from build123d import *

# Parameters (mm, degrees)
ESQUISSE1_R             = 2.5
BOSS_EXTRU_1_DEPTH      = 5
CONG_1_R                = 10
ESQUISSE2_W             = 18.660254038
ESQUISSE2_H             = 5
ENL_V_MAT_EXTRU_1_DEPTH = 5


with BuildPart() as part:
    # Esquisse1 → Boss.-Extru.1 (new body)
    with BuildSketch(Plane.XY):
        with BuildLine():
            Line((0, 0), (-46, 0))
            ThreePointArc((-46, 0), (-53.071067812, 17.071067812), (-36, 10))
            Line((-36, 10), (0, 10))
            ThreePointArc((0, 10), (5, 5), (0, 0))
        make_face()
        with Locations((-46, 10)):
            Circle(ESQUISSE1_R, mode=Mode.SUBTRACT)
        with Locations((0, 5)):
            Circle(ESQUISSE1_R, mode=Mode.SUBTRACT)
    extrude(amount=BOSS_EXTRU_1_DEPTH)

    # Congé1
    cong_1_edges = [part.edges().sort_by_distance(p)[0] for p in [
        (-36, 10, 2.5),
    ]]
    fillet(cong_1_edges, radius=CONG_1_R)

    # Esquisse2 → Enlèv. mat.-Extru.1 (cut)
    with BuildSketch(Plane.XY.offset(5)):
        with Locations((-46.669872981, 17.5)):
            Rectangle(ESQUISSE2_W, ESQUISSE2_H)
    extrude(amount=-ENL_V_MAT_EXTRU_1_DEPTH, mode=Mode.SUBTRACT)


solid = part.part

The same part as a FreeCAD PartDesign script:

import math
import FreeCAD as App
import Part
import Sketcher
Q = App.Units.Quantity


def edges_at(feature, points):
    """Names of the edges that pass closest to the given points."""
    edges = feature.Shape.Edges
    near = lambda p: min(range(len(edges)), key=lambda i: edges[i].distToShape(Part.Vertex(*p))[0])
    return sorted({f"Edge{near(p) + 1}" for p in points})


def add_polygon(sketch, points):
    """Adds a closed chain of lines whose ends are joined by coincident constraints."""
    first, n = sketch.GeometryCount, len(points)
    for a, b in zip(points, points[1:] + points[:1]):
        sketch.addGeometry(Part.LineSegment(App.Vector(*a, 0), App.Vector(*b, 0)), False)
    for i in range(n):
        sketch.addConstraint(Sketcher.Constraint("Coincident", first + i, 2, first + (i + 1) % n, 1))

doc = App.newDocument("Part")
body = doc.addObject("PartDesign::Body", "Body")

sketch1 = body.newObject("Sketcher::SketchObject", "Sketch")
sketch1.AttachmentSupport = (doc.getObject("XY_Plane"), [""])
sketch1.MapMode = "FlatFace"
sketch1.addGeometry([
    Part.LineSegment(App.Vector(-46, 0, 0), App.Vector(0, 0, 0)),
    Part.ArcOfCircle(Part.Circle(App.Vector(0, 5, 0), App.Vector(0, 0, 1), 5), math.radians(-90), math.radians(90)),
    Part.LineSegment(App.Vector(0, 10, 0), App.Vector(-36, 10, 0)),
    Part.ArcOfCircle(Part.Circle(App.Vector(-46, 10, 0), App.Vector(0, 0, 1), 10), math.radians(0), math.radians(270)),
    Part.Circle(App.Vector(0, 5, 0), App.Vector(0, 0, 1), 2.5),
    Part.Circle(App.Vector(-46, 10, 0), App.Vector(0, 0, 1), 2.5),
], False)
sketch1.addConstraint([
    Sketcher.Constraint("Tangent", 0, 2, 1, 1),
    Sketcher.Constraint("Tangent", 1, 2, 2, 1),
    Sketcher.Constraint("Coincident", 2, 2, 3, 1),
    Sketcher.Constraint("Tangent", 3, 2, 0, 1),
    Sketcher.Constraint("Horizontal", 0),
    Sketcher.Constraint("Horizontal", 2),
    Sketcher.Constraint("Coincident", 0, 2, -1, 1),
    Sketcher.Constraint("Coincident", 4, 3, 1, 3),
    Sketcher.Constraint("Coincident", 5, 3, 3, 3),
    Sketcher.Constraint("Equal", 4, 5),
    Sketcher.Constraint("Horizontal", 5, 3, 1, 2),
    Sketcher.Constraint("Diameter", 4, Q("5 mm")),
    Sketcher.Constraint("Radius", 1, Q("5 mm")),
    Sketcher.Constraint("DistanceX", 0, 1, 0, 2, Q("46 mm")),
])
pad1 = body.newObject("PartDesign::Pad", "Pad")
pad1.Profile = sketch1
pad1.Length = 5
doc.recompute()

fillet = body.newObject("PartDesign::Fillet", "Fillet")
fillet.Base = (pad1, edges_at(pad1, [(-36, 10, 2.5)]))
fillet.Radius = 10

sketch2 = body.newObject("Sketcher::SketchObject", "Sketch001")
sketch2.AttachmentSupport = (doc.getObject("XY_Plane"), [""])
sketch2.MapMode = "FlatFace"
sketch2.AttachmentOffset = App.Placement(App.Vector(0, 0, 5), App.Rotation())
add_polygon(sketch2, [(-56, 20), (-56, 15), (-37, 15), (-37, 20)])
sketch2.addConstraint([
    Sketcher.Constraint("Vertical", 0),
    Sketcher.Constraint("Horizontal", 1),
    Sketcher.Constraint("Vertical", 2),
    Sketcher.Constraint("Horizontal", 3),
    Sketcher.Constraint("DistanceY", 0, 2, 0, 1, Q("5 mm")),
    Sketcher.Constraint("DistanceX", 0, 2, -1, 1, Q("56 mm")),
    Sketcher.Constraint("DistanceY", -1, 1, 0, 2, Q("15 mm")),
    Sketcher.Constraint("DistanceX", 1, 1, 1, 2, Q("18.660254 mm")),
])
pocket1 = body.newObject("PartDesign::Pocket", "Pocket")
pocket1.Profile = sketch2
pocket1.Length = 5

doc.recompute()
